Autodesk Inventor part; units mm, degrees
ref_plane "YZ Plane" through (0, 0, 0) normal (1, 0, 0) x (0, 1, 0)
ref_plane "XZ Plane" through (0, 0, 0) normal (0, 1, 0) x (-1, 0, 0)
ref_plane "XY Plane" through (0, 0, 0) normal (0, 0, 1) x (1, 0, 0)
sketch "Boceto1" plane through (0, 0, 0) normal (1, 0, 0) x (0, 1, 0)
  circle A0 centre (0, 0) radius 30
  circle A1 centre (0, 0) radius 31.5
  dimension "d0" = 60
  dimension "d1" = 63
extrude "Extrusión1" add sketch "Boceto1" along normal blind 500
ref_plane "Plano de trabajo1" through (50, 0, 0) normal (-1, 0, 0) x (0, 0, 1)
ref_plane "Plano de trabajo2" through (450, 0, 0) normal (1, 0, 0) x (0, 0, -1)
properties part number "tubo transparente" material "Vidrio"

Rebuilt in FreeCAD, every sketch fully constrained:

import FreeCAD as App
import Part
import Sketcher
from FreeCAD import Vector

doc = App.newDocument("Part")
body = doc.addObject("PartDesign::Body", "Body")

# Sketch on YZ plane
sketch1 = body.newObject("Sketcher::SketchObject", "Sketch")
sketch1.AttachmentSupport = (doc.getObject("YZ_Plane"), [""])
sketch1.MapMode = "FlatFace"
sketch1.addGeometry(Part.Circle(Vector(0, 0, 0), Vector(0, 0, 1), 32), False)
sketch1.addGeometry(Part.Circle(Vector(0, 0, 0), Vector(0, 0, 1), 30), False)
sketch1.addConstraint(Sketcher.Constraint("Coincident", 0, 3, -1, 1))
sketch1.addConstraint(Sketcher.Constraint("Coincident", 1, 3, -1, 1))
sketch1.addConstraint(Sketcher.Constraint("Diameter", 0, 63.0))
sketch1.addConstraint(Sketcher.Constraint("Diameter", 1, 60.0))
pad1 = body.newObject("PartDesign::Pad", "Pad")
pad1.Profile = sketch1
pad1.Length = 500

doc.recompute()
